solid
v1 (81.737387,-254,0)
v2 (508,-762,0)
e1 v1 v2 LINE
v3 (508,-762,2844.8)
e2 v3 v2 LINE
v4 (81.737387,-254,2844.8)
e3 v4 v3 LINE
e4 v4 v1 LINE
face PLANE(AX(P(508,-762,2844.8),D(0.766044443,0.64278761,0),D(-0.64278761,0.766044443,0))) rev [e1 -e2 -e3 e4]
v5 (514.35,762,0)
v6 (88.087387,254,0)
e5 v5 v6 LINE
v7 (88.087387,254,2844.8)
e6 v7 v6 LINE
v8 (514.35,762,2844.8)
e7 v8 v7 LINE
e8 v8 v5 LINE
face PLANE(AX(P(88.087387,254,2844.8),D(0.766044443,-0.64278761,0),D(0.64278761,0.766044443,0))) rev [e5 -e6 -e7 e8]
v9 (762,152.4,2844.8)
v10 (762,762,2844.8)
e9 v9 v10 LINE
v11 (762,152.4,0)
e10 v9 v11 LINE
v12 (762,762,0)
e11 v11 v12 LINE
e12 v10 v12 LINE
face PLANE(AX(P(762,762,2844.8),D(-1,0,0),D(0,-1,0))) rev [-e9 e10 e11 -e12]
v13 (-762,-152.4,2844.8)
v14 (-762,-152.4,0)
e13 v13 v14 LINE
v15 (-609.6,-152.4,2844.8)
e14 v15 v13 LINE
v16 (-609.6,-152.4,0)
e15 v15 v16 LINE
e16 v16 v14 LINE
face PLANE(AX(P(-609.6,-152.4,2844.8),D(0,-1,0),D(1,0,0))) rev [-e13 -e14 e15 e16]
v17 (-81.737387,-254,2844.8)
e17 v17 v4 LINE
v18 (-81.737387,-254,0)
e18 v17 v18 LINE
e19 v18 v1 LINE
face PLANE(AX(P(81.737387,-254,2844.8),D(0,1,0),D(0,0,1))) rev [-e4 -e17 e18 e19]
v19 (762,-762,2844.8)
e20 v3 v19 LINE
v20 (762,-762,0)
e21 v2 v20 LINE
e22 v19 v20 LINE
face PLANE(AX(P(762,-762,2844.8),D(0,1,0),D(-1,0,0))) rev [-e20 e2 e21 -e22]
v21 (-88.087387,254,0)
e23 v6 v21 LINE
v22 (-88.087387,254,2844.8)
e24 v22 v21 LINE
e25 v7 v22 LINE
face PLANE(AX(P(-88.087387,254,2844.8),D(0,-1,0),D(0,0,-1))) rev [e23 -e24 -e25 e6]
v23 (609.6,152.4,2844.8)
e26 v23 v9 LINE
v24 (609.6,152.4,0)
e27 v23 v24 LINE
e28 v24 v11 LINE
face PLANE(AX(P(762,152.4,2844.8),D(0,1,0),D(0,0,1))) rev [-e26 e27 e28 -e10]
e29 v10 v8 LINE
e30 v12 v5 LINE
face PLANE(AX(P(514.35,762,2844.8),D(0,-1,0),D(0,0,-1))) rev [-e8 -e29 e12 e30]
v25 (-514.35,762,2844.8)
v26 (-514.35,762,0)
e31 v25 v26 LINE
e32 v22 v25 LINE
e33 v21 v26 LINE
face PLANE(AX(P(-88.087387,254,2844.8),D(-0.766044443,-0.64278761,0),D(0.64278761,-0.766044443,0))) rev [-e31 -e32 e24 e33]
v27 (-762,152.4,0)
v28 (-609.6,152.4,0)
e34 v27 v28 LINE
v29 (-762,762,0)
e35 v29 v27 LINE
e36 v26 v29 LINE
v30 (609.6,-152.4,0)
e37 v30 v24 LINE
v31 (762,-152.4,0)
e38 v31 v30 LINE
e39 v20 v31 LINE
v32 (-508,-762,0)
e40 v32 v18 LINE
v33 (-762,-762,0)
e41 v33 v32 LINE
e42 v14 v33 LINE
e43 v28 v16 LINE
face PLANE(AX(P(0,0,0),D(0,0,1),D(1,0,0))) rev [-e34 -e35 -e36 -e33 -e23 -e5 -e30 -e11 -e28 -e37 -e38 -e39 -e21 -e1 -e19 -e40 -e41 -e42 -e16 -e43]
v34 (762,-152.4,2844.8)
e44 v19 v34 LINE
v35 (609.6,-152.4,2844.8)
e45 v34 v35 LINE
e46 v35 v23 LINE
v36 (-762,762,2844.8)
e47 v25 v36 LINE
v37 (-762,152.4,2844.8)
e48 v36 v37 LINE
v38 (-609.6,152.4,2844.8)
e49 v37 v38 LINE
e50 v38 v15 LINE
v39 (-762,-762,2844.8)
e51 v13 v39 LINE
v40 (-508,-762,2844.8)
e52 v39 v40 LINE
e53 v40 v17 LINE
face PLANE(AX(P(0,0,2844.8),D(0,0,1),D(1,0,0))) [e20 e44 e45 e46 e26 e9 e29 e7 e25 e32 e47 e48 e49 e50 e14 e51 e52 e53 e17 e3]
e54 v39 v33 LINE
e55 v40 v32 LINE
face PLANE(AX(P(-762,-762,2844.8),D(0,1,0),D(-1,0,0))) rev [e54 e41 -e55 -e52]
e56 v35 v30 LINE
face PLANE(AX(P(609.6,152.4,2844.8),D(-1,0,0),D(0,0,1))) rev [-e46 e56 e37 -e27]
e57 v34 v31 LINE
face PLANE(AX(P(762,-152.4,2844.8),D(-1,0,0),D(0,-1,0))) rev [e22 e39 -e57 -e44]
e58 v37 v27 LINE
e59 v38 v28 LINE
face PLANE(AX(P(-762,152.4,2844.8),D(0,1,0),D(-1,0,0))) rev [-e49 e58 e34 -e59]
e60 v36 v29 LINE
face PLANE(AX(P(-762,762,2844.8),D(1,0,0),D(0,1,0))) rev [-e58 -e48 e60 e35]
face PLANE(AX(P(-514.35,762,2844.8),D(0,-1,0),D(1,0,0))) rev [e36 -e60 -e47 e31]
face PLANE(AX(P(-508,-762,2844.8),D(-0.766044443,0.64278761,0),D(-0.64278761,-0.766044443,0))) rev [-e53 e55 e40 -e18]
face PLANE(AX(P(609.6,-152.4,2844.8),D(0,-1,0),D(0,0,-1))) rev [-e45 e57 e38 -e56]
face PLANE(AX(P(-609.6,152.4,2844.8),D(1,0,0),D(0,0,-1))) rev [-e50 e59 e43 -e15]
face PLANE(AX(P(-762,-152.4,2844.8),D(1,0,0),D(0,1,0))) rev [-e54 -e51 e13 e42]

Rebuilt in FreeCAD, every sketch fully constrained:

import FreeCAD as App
import Part
import Sketcher
Q = App.Units.Quantity


def add_polygon(sketch, points):
    """Adds a closed chain of lines whose ends are joined by coincident constraints."""
    first, n = sketch.GeometryCount, len(points)
    for a, b in zip(points, points[1:] + points[:1]):
        sketch.addGeometry(Part.LineSegment(App.Vector(*a, 0), App.Vector(*b, 0)), False)
    for i in range(n):
        sketch.addConstraint(Sketcher.Constraint("Coincident", first + i, 2, first + (i + 1) % n, 1))

doc = App.newDocument("Part")
params = doc.addObject("Spreadsheet::Sheet", "Params")
for row, (alias, value) in enumerate([
    ("sketch1_width", "6 in"),
    ("sketch1_width2", "10 in"),
    ("sketch1_height", "24 in"),
    ("sketch1_height2", "12 in"),
    ("sketch1_width3", "9.75 in"),
    ("pad1_length", "112 in"),
], start=1):
    params.set(f"A{row}", alias)
    params.set(f"B{row}", "=" + value)
    params.setAlias(f"B{row}", alias)

body = doc.addObject("PartDesign::Body", "Body")

sketch1 = doc.addObject("Sketcher::SketchObject", "Sketch")
body.addObject(sketch1)
sketch1.AttachmentSupport = (doc.XY_Plane, [""])
sketch1.MapMode = "FlatFace"
add_polygon(sketch1, [(88.087387, 254), (-88.087387, 254), (-514.35, 762), (-762, 762), (-762, 152.4), (-609.6, 152.4), (-609.6, -152.4), (-762, -152.4), (-762, -762), (-508, -762), (-81.737387, -254), (81.737387, -254), (508, -762), (762, -762), (762, -152.4), (609.6, -152.4), (609.6, 152.4), (762, 152.4), (762, 762), (514.35, 762)])
sketch1.addConstraint([
    Sketcher.Constraint("Horizontal", 0),
    Sketcher.Constraint("Horizontal", 2),
    Sketcher.Constraint("Vertical", 3),
    Sketcher.Constraint("Horizontal", 4),
    Sketcher.Constraint("Vertical", 5),
    Sketcher.Constraint("Horizontal", 6),
    Sketcher.Constraint("Vertical", 7),
    Sketcher.Constraint("Horizontal", 8),
    Sketcher.Constraint("Horizontal", 10),
    Sketcher.Constraint("Horizontal", 12),
    Sketcher.Constraint("Vertical", 13),
    Sketcher.Constraint("Horizontal", 14),
    Sketcher.Constraint("Vertical", 15),
    Sketcher.Constraint("Horizontal", 16),
    Sketcher.Constraint("Vertical", 17),
    Sketcher.Constraint("Horizontal", 18),
    Sketcher.Constraint("Symmetric", 2, 2, 12, 2, -1, 1),
    Sketcher.Constraint("Symmetric", 4, 2, 14, 2, -1, 1),
    Sketcher.Constraint("Symmetric", 6, 2, 16, 2, -1, 1),
    Sketcher.Constraint("Symmetric", 8, 2, 11, 2, -2),
    Sketcher.Constraint("Symmetric", 6, 2, 13, 2, -2),
    Sketcher.Constraint("Symmetric", 1, 2, 18, 2, -2),
    Sketcher.Constraint("Parallel", 1, 11),
    Sketcher.Constraint("Parallel", 9, 19),
    Sketcher.Constraint("Equal", 1, 9),
    Sketcher.Constraint("Equal", 9, 11),
    Sketcher.Constraint("DistanceX", 4, 1, 4, 2, Q("6 in")),
    Sketcher.Constraint("DistanceX", 8, 1, 8, 2, Q("10 in")),
    Sketcher.Constraint("DistanceY", 3, 2, 3, 1, Q("24 in")),
    Sketcher.Constraint("DistanceY", 5, 2, 5, 1, Q("12 in")),
    Sketcher.Constraint("DistanceY", -1, 1, 0, 2, Q("10 in")),
    Sketcher.Constraint("DistanceX", 2, 2, -1, 1, Q("30 in")),
    Sketcher.Constraint("Angle", 1, Q("130 deg")),
    Sketcher.Constraint("DistanceX", 2, 2, 2, 1, Q("9.75 in")),
])
sketch1.setExpression("Constraints[46]", "Params.sketch1_width")
sketch1.setExpression("Constraints[47]", "Params.sketch1_width2")
sketch1.setExpression("Constraints[48]", "Params.sketch1_height")
sketch1.setExpression("Constraints[49]", "Params.sketch1_height2")
sketch1.setExpression("Constraints[53]", "Params.sketch1_width3")
pad1 = doc.addObject("PartDesign::Pad", "Pad")
body.addObject(pad1)
pad1.Profile = sketch1
pad1.setExpression("Length", "Params.pad1_length")

doc.recompute()
